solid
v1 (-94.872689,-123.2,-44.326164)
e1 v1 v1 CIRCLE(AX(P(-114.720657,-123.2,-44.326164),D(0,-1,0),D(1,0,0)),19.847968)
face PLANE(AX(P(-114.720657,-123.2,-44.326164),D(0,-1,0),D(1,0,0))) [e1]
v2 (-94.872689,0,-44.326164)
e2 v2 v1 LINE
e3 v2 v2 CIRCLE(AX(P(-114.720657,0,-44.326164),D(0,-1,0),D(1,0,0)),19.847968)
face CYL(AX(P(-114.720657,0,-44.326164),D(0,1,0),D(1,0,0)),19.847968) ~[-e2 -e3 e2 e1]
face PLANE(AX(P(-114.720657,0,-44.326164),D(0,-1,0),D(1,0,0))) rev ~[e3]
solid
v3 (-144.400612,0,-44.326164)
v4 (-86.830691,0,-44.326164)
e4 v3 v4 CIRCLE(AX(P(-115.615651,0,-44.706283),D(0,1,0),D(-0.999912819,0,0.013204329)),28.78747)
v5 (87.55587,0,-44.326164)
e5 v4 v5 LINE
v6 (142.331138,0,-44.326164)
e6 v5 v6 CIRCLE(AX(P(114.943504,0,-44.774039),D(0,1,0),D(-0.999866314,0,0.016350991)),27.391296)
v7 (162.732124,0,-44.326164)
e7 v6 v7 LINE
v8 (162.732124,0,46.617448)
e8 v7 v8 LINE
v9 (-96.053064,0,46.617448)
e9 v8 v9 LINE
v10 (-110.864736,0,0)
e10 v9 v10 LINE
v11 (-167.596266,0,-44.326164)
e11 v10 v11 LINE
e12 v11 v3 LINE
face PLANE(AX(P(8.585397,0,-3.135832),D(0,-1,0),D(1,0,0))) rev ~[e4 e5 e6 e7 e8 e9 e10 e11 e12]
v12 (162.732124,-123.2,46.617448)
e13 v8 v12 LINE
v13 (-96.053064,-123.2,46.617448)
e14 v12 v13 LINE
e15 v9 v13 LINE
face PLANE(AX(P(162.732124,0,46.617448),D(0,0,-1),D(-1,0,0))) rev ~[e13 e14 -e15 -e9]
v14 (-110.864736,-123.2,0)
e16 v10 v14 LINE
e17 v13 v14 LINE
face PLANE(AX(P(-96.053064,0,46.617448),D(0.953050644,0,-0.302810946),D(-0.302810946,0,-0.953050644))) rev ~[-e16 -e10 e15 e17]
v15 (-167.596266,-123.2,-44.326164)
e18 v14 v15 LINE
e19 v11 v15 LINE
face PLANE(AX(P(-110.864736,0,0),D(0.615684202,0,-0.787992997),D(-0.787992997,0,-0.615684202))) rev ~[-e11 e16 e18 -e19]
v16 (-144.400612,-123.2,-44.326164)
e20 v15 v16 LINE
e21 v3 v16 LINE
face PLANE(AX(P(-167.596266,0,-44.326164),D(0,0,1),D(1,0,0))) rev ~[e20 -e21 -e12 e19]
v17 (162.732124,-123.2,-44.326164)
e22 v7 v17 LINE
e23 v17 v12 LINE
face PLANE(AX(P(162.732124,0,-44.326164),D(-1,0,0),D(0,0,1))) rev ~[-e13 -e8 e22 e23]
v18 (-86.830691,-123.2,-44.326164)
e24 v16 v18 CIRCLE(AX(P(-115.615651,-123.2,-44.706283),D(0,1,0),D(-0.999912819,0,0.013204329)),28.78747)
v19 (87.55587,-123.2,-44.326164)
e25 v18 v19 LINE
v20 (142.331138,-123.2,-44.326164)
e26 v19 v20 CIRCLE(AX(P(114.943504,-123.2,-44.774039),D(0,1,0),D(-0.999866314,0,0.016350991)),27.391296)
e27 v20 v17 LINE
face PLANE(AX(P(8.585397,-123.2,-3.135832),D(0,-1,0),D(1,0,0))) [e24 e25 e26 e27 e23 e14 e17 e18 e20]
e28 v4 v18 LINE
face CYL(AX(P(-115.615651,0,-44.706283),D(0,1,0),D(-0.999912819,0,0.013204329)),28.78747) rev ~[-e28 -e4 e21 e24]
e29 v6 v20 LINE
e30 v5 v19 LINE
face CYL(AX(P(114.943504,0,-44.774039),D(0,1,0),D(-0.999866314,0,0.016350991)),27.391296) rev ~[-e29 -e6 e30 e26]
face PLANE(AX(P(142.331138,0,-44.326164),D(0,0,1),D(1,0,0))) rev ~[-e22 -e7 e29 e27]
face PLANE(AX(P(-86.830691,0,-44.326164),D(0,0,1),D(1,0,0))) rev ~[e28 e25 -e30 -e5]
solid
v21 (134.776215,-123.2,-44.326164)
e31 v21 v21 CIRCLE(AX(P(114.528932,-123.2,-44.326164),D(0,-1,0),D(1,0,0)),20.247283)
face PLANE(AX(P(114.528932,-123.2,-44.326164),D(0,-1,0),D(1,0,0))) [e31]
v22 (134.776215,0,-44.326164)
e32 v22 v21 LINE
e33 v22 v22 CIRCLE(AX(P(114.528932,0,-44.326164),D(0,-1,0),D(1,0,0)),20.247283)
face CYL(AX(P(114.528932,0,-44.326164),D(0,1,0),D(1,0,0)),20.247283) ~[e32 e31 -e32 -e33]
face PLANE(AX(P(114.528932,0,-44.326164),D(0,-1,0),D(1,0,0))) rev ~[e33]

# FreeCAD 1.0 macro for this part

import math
import FreeCAD as App
import Part
import Sketcher

doc = App.newDocument("Part")
body = doc.addObject("PartDesign::Body", "Body")
body.AllowCompound = True

sketch1 = body.newObject("Sketcher::SketchObject", "Sketch")
sketch1.AttachmentSupport = (doc.getObject("XZ_Plane"), [""])
sketch1.MapMode = "FlatFace"
sketch1.addGeometry([
    Part.Circle(App.Vector(-114.720657, -44.326164, 0), App.Vector(0, 0, 1), 19.847968),
    Part.Circle(App.Vector(114.528932, -44.326164, 0), App.Vector(0, 0, 1), 20.247283),
    Part.ArcOfCircle(Part.Circle(App.Vector(-115.615651, -44.706283, 0), App.Vector(0, 0, 1), 28.78747), math.radians(0.756574), math.radians(179.243426)),
    Part.LineSegment(App.Vector(-86.830691, -44.326164, 0), App.Vector(87.55587, -44.326164, 0)),
    Part.ArcOfCircle(Part.Circle(App.Vector(114.943504, -44.774039, 0), App.Vector(0, 0, 1), 27.391296), math.radians(0.936885), math.radians(179.063115)),
    Part.LineSegment(App.Vector(142.331138, -44.326164, 0), App.Vector(162.732124, -44.326164, 0)),
    Part.LineSegment(App.Vector(162.732124, -44.326164, 0), App.Vector(162.732124, 46.617448, 0)),
    Part.LineSegment(App.Vector(162.732124, 46.617448, 0), App.Vector(-96.053064, 46.617448, 0)),
    Part.LineSegment(App.Vector(-96.053064, 46.617448, 0), App.Vector(-110.864736, 0, 0)),
    Part.LineSegment(App.Vector(-110.864736, 0, 0), App.Vector(-167.596266, -44.326164, 0)),
    Part.LineSegment(App.Vector(-167.596266, -44.326164, 0), App.Vector(-144.400612, -44.326164, 0)),
], False)
sketch1.addConstraint([
    Sketcher.Constraint("Coincident", 2, 1, 3, 1),
    Sketcher.Constraint("Coincident", 3, 2, 4, 2),
    Sketcher.Constraint("Coincident", 4, 1, 5, 1),
    Sketcher.Constraint("Coincident", 5, 2, 6, 1),
    Sketcher.Constraint("Coincident", 6, 2, 7, 1),
    Sketcher.Constraint("Coincident", 7, 2, 8, 1),
    Sketcher.Constraint("Coincident", 8, 2, 9, 1),
    Sketcher.Constraint("Coincident", 9, 2, 10, 1),
    Sketcher.Constraint("Coincident", 10, 2, 2, 2),
    Sketcher.Constraint("Horizontal", 3),
    Sketcher.Constraint("Horizontal", 5),
    Sketcher.Constraint("Vertical", 6),
    Sketcher.Constraint("Horizontal", 7),
    Sketcher.Constraint("Horizontal", 10),
    Sketcher.Constraint("PointOnObject", 8, 2, -1),
    Sketcher.Constraint("Horizontal", 0, 3, 1, 3),
    Sketcher.Constraint("Horizontal", 1, 3, 2, 1),
    Sketcher.Constraint("Horizontal", 3, 2, 4, 1),
    Sketcher.Constraint("Horizontal", 5, 2, 9, 2),
    Sketcher.Constraint("Radius", 2, 28.78747),
    Sketcher.Constraint("Diameter", 0, 39.695936),
    Sketcher.Constraint("Diameter", 1, 40.494566),
    Sketcher.Constraint("Radius", 4, 27.391296),
    Sketcher.Constraint("DistanceX", 3, 1, 3, 2, 174.386561),
    Sketcher.Constraint("DistanceX", 7, 2, 7, 1, 258.785188),
    Sketcher.Constraint("DistanceY", 6, 1, 6, 2, 90.943612),
    Sketcher.Constraint("DistanceX", 5, 1, 5, 2, 20.400986),
    Sketcher.Constraint("DistanceX", 10, 1, 10, 2, 23.195654),
    Sketcher.Constraint("DistanceX", -1, 1, 1, 3, 114.528932),
    Sketcher.Constraint("DistanceX", 2, 3, -1, 1, 115.615651),
    Sketcher.Constraint("DistanceY", 4, 3, -1, 1, 44.774039),
    Sketcher.Constraint("DistanceX", 2, 1, -1, 1, 86.830691),
    Sketcher.Constraint("DistanceX", -1, 1, 4, 1, 142.331138),
    Sketcher.Constraint("DistanceX", 0, 3, 1, 3, 229.249589),
    Sketcher.Constraint("DistanceX", 0, 3, 8, 2, 3.855921),
])
pad1 = body.newObject("PartDesign::Pad", "Pad")
pad1.Profile = sketch1
pad1.Length = 123.2

doc.recompute()
